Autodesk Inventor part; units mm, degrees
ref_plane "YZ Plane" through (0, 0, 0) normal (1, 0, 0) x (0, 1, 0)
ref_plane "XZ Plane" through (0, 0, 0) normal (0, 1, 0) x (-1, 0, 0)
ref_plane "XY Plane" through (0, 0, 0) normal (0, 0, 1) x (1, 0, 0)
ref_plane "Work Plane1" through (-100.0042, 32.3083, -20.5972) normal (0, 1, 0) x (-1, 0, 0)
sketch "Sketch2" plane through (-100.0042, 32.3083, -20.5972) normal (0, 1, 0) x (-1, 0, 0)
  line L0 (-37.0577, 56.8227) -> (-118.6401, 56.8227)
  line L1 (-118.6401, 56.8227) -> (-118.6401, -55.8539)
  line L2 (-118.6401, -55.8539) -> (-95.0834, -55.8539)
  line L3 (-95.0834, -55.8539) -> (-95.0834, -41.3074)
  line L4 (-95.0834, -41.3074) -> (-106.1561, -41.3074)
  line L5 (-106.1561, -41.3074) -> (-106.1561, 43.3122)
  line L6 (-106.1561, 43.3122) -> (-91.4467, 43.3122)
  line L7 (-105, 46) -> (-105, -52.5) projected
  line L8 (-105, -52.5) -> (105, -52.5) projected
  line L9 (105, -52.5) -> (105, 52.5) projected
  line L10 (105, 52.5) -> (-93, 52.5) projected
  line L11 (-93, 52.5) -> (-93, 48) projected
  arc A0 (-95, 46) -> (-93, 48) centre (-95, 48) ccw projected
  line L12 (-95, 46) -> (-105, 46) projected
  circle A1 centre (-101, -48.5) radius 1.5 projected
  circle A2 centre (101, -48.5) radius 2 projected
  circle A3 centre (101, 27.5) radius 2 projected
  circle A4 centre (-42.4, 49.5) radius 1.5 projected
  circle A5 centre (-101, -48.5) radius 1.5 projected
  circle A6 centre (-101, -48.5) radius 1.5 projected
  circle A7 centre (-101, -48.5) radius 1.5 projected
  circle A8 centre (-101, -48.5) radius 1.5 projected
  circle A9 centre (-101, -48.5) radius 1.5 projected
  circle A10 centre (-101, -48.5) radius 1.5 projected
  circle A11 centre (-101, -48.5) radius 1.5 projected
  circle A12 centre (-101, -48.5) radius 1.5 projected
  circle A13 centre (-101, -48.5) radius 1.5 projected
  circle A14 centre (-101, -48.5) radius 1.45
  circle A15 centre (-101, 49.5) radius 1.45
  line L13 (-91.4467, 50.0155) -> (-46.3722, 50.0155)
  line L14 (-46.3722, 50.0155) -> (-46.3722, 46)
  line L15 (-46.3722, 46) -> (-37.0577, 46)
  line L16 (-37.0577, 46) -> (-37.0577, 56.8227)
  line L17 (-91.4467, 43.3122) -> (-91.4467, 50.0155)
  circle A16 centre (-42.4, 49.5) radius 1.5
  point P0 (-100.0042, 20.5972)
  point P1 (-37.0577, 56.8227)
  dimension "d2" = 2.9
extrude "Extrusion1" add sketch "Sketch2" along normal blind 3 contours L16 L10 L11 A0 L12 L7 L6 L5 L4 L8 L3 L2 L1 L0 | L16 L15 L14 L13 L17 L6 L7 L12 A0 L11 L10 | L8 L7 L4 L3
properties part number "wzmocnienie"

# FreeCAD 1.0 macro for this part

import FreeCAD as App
import Part
import Sketcher
Q = App.Units.Quantity

doc = App.newDocument("Part")
body = doc.addObject("PartDesign::Body", "Body")

# Sketch on XZ plane
sketch1 = body.newObject("Sketcher::SketchObject", "Sketch")
sketch1.AttachmentSupport = (doc.getObject("XZ_Plane"), [""])
sketch1.MapMode = "FlatFace"
sketch1.AttachmentOffset = App.Placement(App.Vector(0, 0, -32.3083), App.Rotation())
sketch1.addGeometry(Part.LineSegment(App.Vector(-62.9, 36.2, 0), App.Vector(18.6, 36.2, 0)), False)
sketch1.addGeometry(Part.LineSegment(App.Vector(18.6, 36.2, 0), App.Vector(18.6, -76.5, 0)), False)
sketch1.addGeometry(Part.LineSegment(App.Vector(18.6, -76.5, 0), App.Vector(-4.9, -76.5, 0)), False)
sketch1.addGeometry(Part.LineSegment(App.Vector(-4.9, -76.5, 0), App.Vector(-4.9, -61.9, 0)), False)
sketch1.addGeometry(Part.LineSegment(App.Vector(-4.9, -61.9, 0), App.Vector(6.2, -61.9, 0)), False)
sketch1.addGeometry(Part.LineSegment(App.Vector(6.2, -61.9, 0), App.Vector(6.2, 22.7, 0)), False)
sketch1.addGeometry(Part.LineSegment(App.Vector(6.2, 22.7, 0), App.Vector(-8.6, 22.7, 0)), False)
sketch1.addGeometry(Part.LineSegment(App.Vector(-8.6, 22.7, 0), App.Vector(-8.6, 29.4, 0)), False)
sketch1.addGeometry(Part.LineSegment(App.Vector(-8.6, 29.4, 0), App.Vector(-53.6, 29.4, 0)), False)
sketch1.addGeometry(Part.LineSegment(App.Vector(-53.6, 29.4, 0), App.Vector(-53.6, 25.4, 0)), False)
sketch1.addGeometry(Part.LineSegment(App.Vector(-53.6, 25.4, 0), App.Vector(-62.9, 25.4, 0)), False)
sketch1.addGeometry(Part.LineSegment(App.Vector(-62.9, 25.4, 0), App.Vector(-62.9, 36.2, 0)), False)
sketch1.addGeometry(Part.Circle(App.Vector(1, 28.9, 0), App.Vector(0, 0, 1), 1.4), False)
sketch1.addGeometry(Part.Circle(App.Vector(-57.6, 28.9, 0), App.Vector(0, 0, 1), 1.5), False)
sketch1.addGeometry(Part.Circle(App.Vector(1, -69.1, 0), App.Vector(0, 0, 1), 1.5), False)
sketch1.addConstraint(Sketcher.Constraint("Coincident", 0, 2, 1, 1))
sketch1.addConstraint(Sketcher.Constraint("Coincident", 1, 2, 2, 1))
sketch1.addConstraint(Sketcher.Constraint("Coincident", 2, 2, 3, 1))
sketch1.addConstraint(Sketcher.Constraint("Coincident", 3, 2, 4, 1))
sketch1.addConstraint(Sketcher.Constraint("Coincident", 4, 2, 5, 1))
sketch1.addConstraint(Sketcher.Constraint("Coincident", 5, 2, 6, 1))
sketch1.addConstraint(Sketcher.Constraint("Coincident", 6, 2, 7, 1))
sketch1.addConstraint(Sketcher.Constraint("Coincident", 7, 2, 8, 1))
sketch1.addConstraint(Sketcher.Constraint("Coincident", 8, 2, 9, 1))
sketch1.addConstraint(Sketcher.Constraint("Coincident", 9, 2, 10, 1))
sketch1.addConstraint(Sketcher.Constraint("Coincident", 10, 2, 11, 1))
sketch1.addConstraint(Sketcher.Constraint("Coincident", 11, 2, 0, 1))
sketch1.addConstraint(Sketcher.Constraint("Horizontal", 0))
sketch1.addConstraint(Sketcher.Constraint("Vertical", 1))
sketch1.addConstraint(Sketcher.Constraint("Horizontal", 2))
sketch1.addConstraint(Sketcher.Constraint("Vertical", 3))
sketch1.addConstraint(Sketcher.Constraint("Horizontal", 4))
sketch1.addConstraint(Sketcher.Constraint("Vertical", 5))
sketch1.addConstraint(Sketcher.Constraint("Horizontal", 6))
sketch1.addConstraint(Sketcher.Constraint("Vertical", 7))
sketch1.addConstraint(Sketcher.Constraint("Horizontal", 8))
sketch1.addConstraint(Sketcher.Constraint("Vertical", 9))
sketch1.addConstraint(Sketcher.Constraint("Horizontal", 10))
sketch1.addConstraint(Sketcher.Constraint("Vertical", 11))
sketch1.addConstraint(Sketcher.Constraint("Equal", 13, 14))
sketch1.addConstraint(Sketcher.Constraint("Horizontal", 12, 3, 13, 3))
sketch1.addConstraint(Sketcher.Constraint("Vertical", 12, 3, 14, 3))
sketch1.addConstraint(Sketcher.Constraint("Diameter", 12, Q("2.9 mm")))
sketch1.addConstraint(Sketcher.Constraint("Diameter", 13, Q("3 mm")))
sketch1.addConstraint(Sketcher.Constraint("DistanceY", 14, 3, 12, 3, Q("98 mm")))
sketch1.addConstraint(Sketcher.Constraint("DistanceX", 13, 3, 12, 3, Q("58.6 mm")))
sketch1.addConstraint(Sketcher.Constraint("DistanceY", 9, 2, 13, 3, Q("3.5 mm")))
sketch1.addConstraint(Sketcher.Constraint("DistanceX", 12, 3, 0, 2, Q("17.64 mm")))
sketch1.addConstraint(Sketcher.Constraint("DistanceY", 3, 2, 0, 2, Q("98.13 mm")))
sketch1.addConstraint(Sketcher.Constraint("DistanceX", 0, 1, 0, 2, Q("81.5824 mm")))
sketch1.addConstraint(Sketcher.Constraint("DistanceX", 2, 2, 2, 1, Q("23.5567 mm")))
sketch1.addConstraint(Sketcher.Constraint("DistanceX", 4, 1, 4, 2, Q("11.0727 mm")))
sketch1.addConstraint(Sketcher.Constraint("DistanceX", 6, 2, 6, 1, Q("14.7094 mm")))
sketch1.addConstraint(Sketcher.Constraint("DistanceX", 8, 2, 8, 1, Q("45.0745 mm")))
sketch1.addConstraint(Sketcher.Constraint("DistanceY", 1, 2, 1, 1, Q("112.6766 mm")))
sketch1.addConstraint(Sketcher.Constraint("DistanceY", 5, 1, 5, 2, Q("84.6196 mm")))
sketch1.addConstraint(Sketcher.Constraint("DistanceY", 7, 1, 7, 2, Q("6.7033 mm")))
sketch1.addConstraint(Sketcher.Constraint("DistanceY", 9, 2, 9, 1, Q("4.0155 mm")))
sketch1.addConstraint(Sketcher.Constraint("DistanceX", -1, 1, 0, 2, Q("18.636 mm")))
sketch1.addConstraint(Sketcher.Constraint("DistanceY", 1, 2, -1, 1, Q("76.451 mm")))
pad1 = body.newObject("PartDesign::Pad", "Pad")
pad1.Profile = sketch1
pad1.Length = 3
pad1.Reversed = True

doc.recompute()
